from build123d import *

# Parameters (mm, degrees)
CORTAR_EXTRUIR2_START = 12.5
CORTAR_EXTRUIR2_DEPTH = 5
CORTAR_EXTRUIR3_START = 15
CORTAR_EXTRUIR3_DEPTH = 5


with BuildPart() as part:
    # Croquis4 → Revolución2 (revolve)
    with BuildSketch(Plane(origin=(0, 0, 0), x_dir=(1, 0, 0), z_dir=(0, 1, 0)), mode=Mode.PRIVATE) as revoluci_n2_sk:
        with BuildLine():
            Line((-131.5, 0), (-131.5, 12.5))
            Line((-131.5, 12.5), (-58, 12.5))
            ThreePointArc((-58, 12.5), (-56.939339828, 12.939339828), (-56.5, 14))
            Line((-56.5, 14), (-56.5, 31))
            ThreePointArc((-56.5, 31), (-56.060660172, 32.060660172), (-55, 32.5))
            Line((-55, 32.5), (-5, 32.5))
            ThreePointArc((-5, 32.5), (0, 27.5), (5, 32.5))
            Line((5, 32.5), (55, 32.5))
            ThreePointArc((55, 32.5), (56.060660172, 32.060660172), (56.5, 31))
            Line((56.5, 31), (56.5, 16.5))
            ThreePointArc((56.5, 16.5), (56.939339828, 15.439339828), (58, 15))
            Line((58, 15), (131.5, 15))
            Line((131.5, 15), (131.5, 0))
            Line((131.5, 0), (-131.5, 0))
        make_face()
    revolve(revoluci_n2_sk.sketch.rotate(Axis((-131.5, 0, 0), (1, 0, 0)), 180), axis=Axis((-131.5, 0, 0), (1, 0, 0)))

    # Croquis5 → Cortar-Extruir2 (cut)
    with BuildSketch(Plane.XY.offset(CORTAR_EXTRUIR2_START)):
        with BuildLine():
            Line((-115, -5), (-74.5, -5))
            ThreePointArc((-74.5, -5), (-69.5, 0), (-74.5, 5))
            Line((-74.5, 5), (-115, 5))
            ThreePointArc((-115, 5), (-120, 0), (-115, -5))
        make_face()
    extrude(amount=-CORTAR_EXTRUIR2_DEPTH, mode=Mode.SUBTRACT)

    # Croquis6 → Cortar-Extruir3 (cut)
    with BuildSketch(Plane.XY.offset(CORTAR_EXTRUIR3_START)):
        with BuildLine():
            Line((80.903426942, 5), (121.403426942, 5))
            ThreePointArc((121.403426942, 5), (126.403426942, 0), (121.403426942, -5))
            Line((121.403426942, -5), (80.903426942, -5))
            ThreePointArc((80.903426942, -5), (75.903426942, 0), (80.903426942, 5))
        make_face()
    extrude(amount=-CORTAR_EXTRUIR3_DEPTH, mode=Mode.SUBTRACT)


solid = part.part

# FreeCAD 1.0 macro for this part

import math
import FreeCAD as App
import Part
import Sketcher

V = App.Vector

doc = App.newDocument("Part")
params = doc.addObject("Spreadsheet::Sheet", "Params")
for row, (alias, value) in enumerate([
    ("sketch1_radius", "5 mm"),
    ("sketch1_radius2", "1.5 mm"),
    ("sketch1_width", "263 mm"),
    ("sketch1_width2", "50 mm"),
    ("sketch1_height", "15 mm"),
    ("revolution_angle", "360 deg"),
    ("sketch2_radius", "5 mm"),
    ("sketch2_width", "40.5 mm"),
    ("pocket1_length", "5 mm"),
    ("sketch3_radius", "5 mm"),
    ("sketch3_width", "40.5 mm"),
    ("pocket2_length", "5 mm"),
], start=1):
    params.set(f"A{row}", alias)
    params.set(f"B{row}", "=" + value)
    params.setAlias(f"B{row}", alias)

body = doc.addObject("PartDesign::Body", "Body")

# Sketch on XZ plane
sketch1 = body.newObject("Sketcher::SketchObject", "Sketch")
sketch1.AttachmentSupport = (doc.getObject("XZ_Plane"), [""])
sketch1.MapMode = "FlatFace"
sketch1.addGeometry(Part.LineSegment(V(-131.5, -12.5, 0), V(-131.5, 0, 0)), False)
sketch1.addGeometry(Part.LineSegment(V(-131.5, 0, 0), V(131.5, 0, 0)), False)
sketch1.addGeometry(Part.LineSegment(V(131.5, 0, 0), V(131.5, -15, 0)), False)
sketch1.addGeometry(Part.LineSegment(V(131.5, -15, 0), V(58, -15, 0)), False)
sketch1.addGeometry(Part.ArcOfCircle(Part.Circle(V(58, -16.5, 0), V(0, 0, 1), 1.5), math.radians(90), math.radians(180)), False)
sketch1.addGeometry(Part.LineSegment(V(56.5, -16.5, 0), V(56.5, -31, 0)), False)
sketch1.addGeometry(Part.ArcOfCircle(Part.Circle(V(55, -31, 0), V(0, 0, 1), 1.5), math.radians(-90), math.radians(0)), False)
sketch1.addGeometry(Part.LineSegment(V(55, -32.5, 0), V(5, -32.5, 0)), False)
sketch1.addGeometry(Part.ArcOfCircle(Part.Circle(V(0, -32.5, 0), V(0, 0, 1), 5), math.radians(0), math.radians(180)), False)
sketch1.addGeometry(Part.LineSegment(V(-5, -32.5, 0), V(-55, -32.5, 0)), False)
sketch1.addGeometry(Part.ArcOfCircle(Part.Circle(V(-55, -31, 0), V(0, 0, 1), 1.5), math.radians(180), math.radians(270)), False)
sketch1.addGeometry(Part.LineSegment(V(-56.5, -31, 0), V(-56.5, -14, 0)), False)
sketch1.addGeometry(Part.ArcOfCircle(Part.Circle(V(-58, -14, 0), V(0, 0, 1), 1.5), math.radians(0), math.radians(90)), False)
sketch1.addGeometry(Part.LineSegment(V(-58, -12.5, 0), V(-131.5, -12.5, 0)), False)
sketch1.addConstraint(Sketcher.Constraint("Coincident", 0, 2, 1, 1))
sketch1.addConstraint(Sketcher.Constraint("Coincident", 1, 2, 2, 1))
sketch1.addConstraint(Sketcher.Constraint("Coincident", 2, 2, 3, 1))
sketch1.addConstraint(Sketcher.Constraint("Tangent", 3, 2, 4, 1))
sketch1.addConstraint(Sketcher.Constraint("Tangent", 4, 2, 5, 1))
sketch1.addConstraint(Sketcher.Constraint("Tangent", 5, 2, 6, 2))
sketch1.addConstraint(Sketcher.Constraint("Tangent", 6, 1, 7, 1))
sketch1.addConstraint(Sketcher.Constraint("Coincident", 7, 2, 8, 1))
sketch1.addConstraint(Sketcher.Constraint("Coincident", 8, 2, 9, 1))
sketch1.addConstraint(Sketcher.Constraint("Tangent", 9, 2, 10, 2))
sketch1.addConstraint(Sketcher.Constraint("Tangent", 10, 1, 11, 1))
sketch1.addConstraint(Sketcher.Constraint("Tangent", 11, 2, 12, 1))
sketch1.addConstraint(Sketcher.Constraint("Tangent", 12, 2, 13, 1))
sketch1.addConstraint(Sketcher.Constraint("Coincident", 13, 2, 0, 1))
sketch1.addConstraint(Sketcher.Constraint("Vertical", 0))
sketch1.addConstraint(Sketcher.Constraint("Horizontal", 1))
sketch1.addConstraint(Sketcher.Constraint("Vertical", 2))
sketch1.addConstraint(Sketcher.Constraint("Horizontal", 3))
sketch1.addConstraint(Sketcher.Constraint("Vertical", 5))
sketch1.addConstraint(Sketcher.Constraint("Horizontal", 7))
sketch1.addConstraint(Sketcher.Constraint("Horizontal", 9))
sketch1.addConstraint(Sketcher.Constraint("Vertical", 11))
sketch1.addConstraint(Sketcher.Constraint("Horizontal", 13))
sketch1.addConstraint(Sketcher.Constraint("Equal", 4, 6))
sketch1.addConstraint(Sketcher.Constraint("Equal", 6, 10))
sketch1.addConstraint(Sketcher.Constraint("Equal", 10, 12))
sketch1.addConstraint(Sketcher.Constraint("Symmetric", 0, 2, 1, 2, -1, 1))
sketch1.addConstraint(Sketcher.Constraint("Symmetric", 6, 3, 10, 3, -2))
sketch1.addConstraint(Sketcher.Constraint("PointOnObject", 8, 3, -2))
sketch1.addConstraint(Sketcher.Constraint("Horizontal", 8, 3, 6, 1))
sketch1.addConstraint(Sketcher.Constraint("Radius", 8, 5.0))
sketch1.addConstraint(Sketcher.Constraint("Radius", 4, 1.5))
sketch1.addConstraint(Sketcher.Constraint("DistanceX", 1, 1, 1, 2, 263.0))
sketch1.addConstraint(Sketcher.Constraint("DistanceX", 7, 2, 7, 1, 50.0))
sketch1.addConstraint(Sketcher.Constraint("DistanceY", 2, 2, 2, 1, 15.0))
sketch1.addConstraint(Sketcher.Constraint("DistanceY", 11, 1, 11, 2, 17.0))
sketch1.addConstraint(Sketcher.Constraint("DistanceY", 0, 1, 0, 2, 12.5))
sketch1.setExpression("Constraints[30]", "Params.sketch1_radius")
sketch1.setExpression("Constraints[31]", "Params.sketch1_radius2")
sketch1.setExpression("Constraints[32]", "Params.sketch1_width")
sketch1.setExpression("Constraints[33]", "Params.sketch1_width2")
sketch1.setExpression("Constraints[34]", "Params.sketch1_height")
revolution = body.newObject("PartDesign::Revolution", "Revolution")
revolution.Profile = sketch1
revolution.ReferenceAxis = (sketch1, ["H_Axis"])
revolution.setExpression("Angle", "Params.revolution_angle")

# Sketch on XY plane
sketch2 = body.newObject("Sketcher::SketchObject", "Sketch001")
sketch2.AttachmentSupport = (doc.getObject("XY_Plane"), [""])
sketch2.MapMode = "FlatFace"
sketch2.AttachmentOffset = App.Placement(V(0, 0, 12.5), App.Rotation())
sketch2.addGeometry(Part.LineSegment(V(-115, -5, 0), V(-74, -5, 0)), False)
sketch2.addGeometry(Part.ArcOfCircle(Part.Circle(V(-74, 0, 0), V(0, 0, 1), 5), math.radians(-90), math.radians(90)), False)
sketch2.addGeometry(Part.LineSegment(V(-74, 5, 0), V(-115, 5, 0)), False)
sketch2.addGeometry(Part.ArcOfCircle(Part.Circle(V(-115, 0, 0), V(0, 0, 1), 5), math.radians(90), math.radians(270)), False)
sketch2.addConstraint(Sketcher.Constraint("Tangent", 0, 2, 1, 1))
sketch2.addConstraint(Sketcher.Constraint("Tangent", 1, 2, 2, 1))
sketch2.addConstraint(Sketcher.Constraint("Tangent", 2, 2, 3, 1))
sketch2.addConstraint(Sketcher.Constraint("Tangent", 3, 2, 0, 1))
sketch2.addConstraint(Sketcher.Constraint("Horizontal", 0))
sketch2.addConstraint(Sketcher.Constraint("Horizontal", 2))
sketch2.addConstraint(Sketcher.Constraint("PointOnObject", 1, 3, -1))
sketch2.addConstraint(Sketcher.Constraint("Radius", 1, 5.0))
sketch2.addConstraint(Sketcher.Constraint("DistanceX", 0, 1, 0, 2, 40.5))
sketch2.addConstraint(Sketcher.Constraint("DistanceX", 3, 3, -1, 1, 115.0))
sketch2.setExpression("Constraints[7]", "Params.sketch2_radius")
sketch2.setExpression("Constraints[8]", "Params.sketch2_width")
pocket1 = body.newObject("PartDesign::Pocket", "Pocket")
pocket1.Profile = sketch2
pocket1.setExpression("Length", "Params.pocket1_length")

# Sketch on XY plane
sketch3 = body.newObject("Sketcher::SketchObject", "Sketch002")
sketch3.AttachmentSupport = (doc.getObject("XY_Plane"), [""])
sketch3.MapMode = "FlatFace"
sketch3.AttachmentOffset = App.Placement(V(0, 0, 15), App.Rotation())
sketch3.addGeometry(Part.LineSegment(V(121, 5, 0), V(81, 5, 0)), False)
sketch3.addGeometry(Part.ArcOfCircle(Part.Circle(V(81, 0, 0), V(0, 0, 1), 5), math.radians(90), math.radians(270)), False)
sketch3.addGeometry(Part.LineSegment(V(81, -5, 0), V(121, -5, 0)), False)
sketch3.addGeometry(Part.ArcOfCircle(Part.Circle(V(121, 0, 0), V(0, 0, 1), 5), math.radians(-90), math.radians(90)), False)
sketch3.addConstraint(Sketcher.Constraint("Tangent", 0, 2, 1, 1))
sketch3.addConstraint(Sketcher.Constraint("Tangent", 1, 2, 2, 1))
sketch3.addConstraint(Sketcher.Constraint("Tangent", 2, 2, 3, 1))
sketch3.addConstraint(Sketcher.Constraint("Tangent", 3, 2, 0, 1))
sketch3.addConstraint(Sketcher.Constraint("Horizontal", 0))
sketch3.addConstraint(Sketcher.Constraint("Horizontal", 2))
sketch3.addConstraint(Sketcher.Constraint("PointOnObject", 1, 3, -1))
sketch3.addConstraint(Sketcher.Constraint("Radius", 1, 5.0))
sketch3.addConstraint(Sketcher.Constraint("DistanceX", 0, 2, 0, 1, 40.5))
sketch3.addConstraint(Sketcher.Constraint("DistanceX", -1, 1, 1, 3, 80.903427))
sketch3.setExpression("Constraints[7]", "Params.sketch3_radius")
sketch3.setExpression("Constraints[8]", "Params.sketch3_width")
pocket2 = body.newObject("PartDesign::Pocket", "Pocket001")
pocket2.Profile = sketch3
pocket2.setExpression("Length", "Params.pocket2_length")

doc.recompute()
